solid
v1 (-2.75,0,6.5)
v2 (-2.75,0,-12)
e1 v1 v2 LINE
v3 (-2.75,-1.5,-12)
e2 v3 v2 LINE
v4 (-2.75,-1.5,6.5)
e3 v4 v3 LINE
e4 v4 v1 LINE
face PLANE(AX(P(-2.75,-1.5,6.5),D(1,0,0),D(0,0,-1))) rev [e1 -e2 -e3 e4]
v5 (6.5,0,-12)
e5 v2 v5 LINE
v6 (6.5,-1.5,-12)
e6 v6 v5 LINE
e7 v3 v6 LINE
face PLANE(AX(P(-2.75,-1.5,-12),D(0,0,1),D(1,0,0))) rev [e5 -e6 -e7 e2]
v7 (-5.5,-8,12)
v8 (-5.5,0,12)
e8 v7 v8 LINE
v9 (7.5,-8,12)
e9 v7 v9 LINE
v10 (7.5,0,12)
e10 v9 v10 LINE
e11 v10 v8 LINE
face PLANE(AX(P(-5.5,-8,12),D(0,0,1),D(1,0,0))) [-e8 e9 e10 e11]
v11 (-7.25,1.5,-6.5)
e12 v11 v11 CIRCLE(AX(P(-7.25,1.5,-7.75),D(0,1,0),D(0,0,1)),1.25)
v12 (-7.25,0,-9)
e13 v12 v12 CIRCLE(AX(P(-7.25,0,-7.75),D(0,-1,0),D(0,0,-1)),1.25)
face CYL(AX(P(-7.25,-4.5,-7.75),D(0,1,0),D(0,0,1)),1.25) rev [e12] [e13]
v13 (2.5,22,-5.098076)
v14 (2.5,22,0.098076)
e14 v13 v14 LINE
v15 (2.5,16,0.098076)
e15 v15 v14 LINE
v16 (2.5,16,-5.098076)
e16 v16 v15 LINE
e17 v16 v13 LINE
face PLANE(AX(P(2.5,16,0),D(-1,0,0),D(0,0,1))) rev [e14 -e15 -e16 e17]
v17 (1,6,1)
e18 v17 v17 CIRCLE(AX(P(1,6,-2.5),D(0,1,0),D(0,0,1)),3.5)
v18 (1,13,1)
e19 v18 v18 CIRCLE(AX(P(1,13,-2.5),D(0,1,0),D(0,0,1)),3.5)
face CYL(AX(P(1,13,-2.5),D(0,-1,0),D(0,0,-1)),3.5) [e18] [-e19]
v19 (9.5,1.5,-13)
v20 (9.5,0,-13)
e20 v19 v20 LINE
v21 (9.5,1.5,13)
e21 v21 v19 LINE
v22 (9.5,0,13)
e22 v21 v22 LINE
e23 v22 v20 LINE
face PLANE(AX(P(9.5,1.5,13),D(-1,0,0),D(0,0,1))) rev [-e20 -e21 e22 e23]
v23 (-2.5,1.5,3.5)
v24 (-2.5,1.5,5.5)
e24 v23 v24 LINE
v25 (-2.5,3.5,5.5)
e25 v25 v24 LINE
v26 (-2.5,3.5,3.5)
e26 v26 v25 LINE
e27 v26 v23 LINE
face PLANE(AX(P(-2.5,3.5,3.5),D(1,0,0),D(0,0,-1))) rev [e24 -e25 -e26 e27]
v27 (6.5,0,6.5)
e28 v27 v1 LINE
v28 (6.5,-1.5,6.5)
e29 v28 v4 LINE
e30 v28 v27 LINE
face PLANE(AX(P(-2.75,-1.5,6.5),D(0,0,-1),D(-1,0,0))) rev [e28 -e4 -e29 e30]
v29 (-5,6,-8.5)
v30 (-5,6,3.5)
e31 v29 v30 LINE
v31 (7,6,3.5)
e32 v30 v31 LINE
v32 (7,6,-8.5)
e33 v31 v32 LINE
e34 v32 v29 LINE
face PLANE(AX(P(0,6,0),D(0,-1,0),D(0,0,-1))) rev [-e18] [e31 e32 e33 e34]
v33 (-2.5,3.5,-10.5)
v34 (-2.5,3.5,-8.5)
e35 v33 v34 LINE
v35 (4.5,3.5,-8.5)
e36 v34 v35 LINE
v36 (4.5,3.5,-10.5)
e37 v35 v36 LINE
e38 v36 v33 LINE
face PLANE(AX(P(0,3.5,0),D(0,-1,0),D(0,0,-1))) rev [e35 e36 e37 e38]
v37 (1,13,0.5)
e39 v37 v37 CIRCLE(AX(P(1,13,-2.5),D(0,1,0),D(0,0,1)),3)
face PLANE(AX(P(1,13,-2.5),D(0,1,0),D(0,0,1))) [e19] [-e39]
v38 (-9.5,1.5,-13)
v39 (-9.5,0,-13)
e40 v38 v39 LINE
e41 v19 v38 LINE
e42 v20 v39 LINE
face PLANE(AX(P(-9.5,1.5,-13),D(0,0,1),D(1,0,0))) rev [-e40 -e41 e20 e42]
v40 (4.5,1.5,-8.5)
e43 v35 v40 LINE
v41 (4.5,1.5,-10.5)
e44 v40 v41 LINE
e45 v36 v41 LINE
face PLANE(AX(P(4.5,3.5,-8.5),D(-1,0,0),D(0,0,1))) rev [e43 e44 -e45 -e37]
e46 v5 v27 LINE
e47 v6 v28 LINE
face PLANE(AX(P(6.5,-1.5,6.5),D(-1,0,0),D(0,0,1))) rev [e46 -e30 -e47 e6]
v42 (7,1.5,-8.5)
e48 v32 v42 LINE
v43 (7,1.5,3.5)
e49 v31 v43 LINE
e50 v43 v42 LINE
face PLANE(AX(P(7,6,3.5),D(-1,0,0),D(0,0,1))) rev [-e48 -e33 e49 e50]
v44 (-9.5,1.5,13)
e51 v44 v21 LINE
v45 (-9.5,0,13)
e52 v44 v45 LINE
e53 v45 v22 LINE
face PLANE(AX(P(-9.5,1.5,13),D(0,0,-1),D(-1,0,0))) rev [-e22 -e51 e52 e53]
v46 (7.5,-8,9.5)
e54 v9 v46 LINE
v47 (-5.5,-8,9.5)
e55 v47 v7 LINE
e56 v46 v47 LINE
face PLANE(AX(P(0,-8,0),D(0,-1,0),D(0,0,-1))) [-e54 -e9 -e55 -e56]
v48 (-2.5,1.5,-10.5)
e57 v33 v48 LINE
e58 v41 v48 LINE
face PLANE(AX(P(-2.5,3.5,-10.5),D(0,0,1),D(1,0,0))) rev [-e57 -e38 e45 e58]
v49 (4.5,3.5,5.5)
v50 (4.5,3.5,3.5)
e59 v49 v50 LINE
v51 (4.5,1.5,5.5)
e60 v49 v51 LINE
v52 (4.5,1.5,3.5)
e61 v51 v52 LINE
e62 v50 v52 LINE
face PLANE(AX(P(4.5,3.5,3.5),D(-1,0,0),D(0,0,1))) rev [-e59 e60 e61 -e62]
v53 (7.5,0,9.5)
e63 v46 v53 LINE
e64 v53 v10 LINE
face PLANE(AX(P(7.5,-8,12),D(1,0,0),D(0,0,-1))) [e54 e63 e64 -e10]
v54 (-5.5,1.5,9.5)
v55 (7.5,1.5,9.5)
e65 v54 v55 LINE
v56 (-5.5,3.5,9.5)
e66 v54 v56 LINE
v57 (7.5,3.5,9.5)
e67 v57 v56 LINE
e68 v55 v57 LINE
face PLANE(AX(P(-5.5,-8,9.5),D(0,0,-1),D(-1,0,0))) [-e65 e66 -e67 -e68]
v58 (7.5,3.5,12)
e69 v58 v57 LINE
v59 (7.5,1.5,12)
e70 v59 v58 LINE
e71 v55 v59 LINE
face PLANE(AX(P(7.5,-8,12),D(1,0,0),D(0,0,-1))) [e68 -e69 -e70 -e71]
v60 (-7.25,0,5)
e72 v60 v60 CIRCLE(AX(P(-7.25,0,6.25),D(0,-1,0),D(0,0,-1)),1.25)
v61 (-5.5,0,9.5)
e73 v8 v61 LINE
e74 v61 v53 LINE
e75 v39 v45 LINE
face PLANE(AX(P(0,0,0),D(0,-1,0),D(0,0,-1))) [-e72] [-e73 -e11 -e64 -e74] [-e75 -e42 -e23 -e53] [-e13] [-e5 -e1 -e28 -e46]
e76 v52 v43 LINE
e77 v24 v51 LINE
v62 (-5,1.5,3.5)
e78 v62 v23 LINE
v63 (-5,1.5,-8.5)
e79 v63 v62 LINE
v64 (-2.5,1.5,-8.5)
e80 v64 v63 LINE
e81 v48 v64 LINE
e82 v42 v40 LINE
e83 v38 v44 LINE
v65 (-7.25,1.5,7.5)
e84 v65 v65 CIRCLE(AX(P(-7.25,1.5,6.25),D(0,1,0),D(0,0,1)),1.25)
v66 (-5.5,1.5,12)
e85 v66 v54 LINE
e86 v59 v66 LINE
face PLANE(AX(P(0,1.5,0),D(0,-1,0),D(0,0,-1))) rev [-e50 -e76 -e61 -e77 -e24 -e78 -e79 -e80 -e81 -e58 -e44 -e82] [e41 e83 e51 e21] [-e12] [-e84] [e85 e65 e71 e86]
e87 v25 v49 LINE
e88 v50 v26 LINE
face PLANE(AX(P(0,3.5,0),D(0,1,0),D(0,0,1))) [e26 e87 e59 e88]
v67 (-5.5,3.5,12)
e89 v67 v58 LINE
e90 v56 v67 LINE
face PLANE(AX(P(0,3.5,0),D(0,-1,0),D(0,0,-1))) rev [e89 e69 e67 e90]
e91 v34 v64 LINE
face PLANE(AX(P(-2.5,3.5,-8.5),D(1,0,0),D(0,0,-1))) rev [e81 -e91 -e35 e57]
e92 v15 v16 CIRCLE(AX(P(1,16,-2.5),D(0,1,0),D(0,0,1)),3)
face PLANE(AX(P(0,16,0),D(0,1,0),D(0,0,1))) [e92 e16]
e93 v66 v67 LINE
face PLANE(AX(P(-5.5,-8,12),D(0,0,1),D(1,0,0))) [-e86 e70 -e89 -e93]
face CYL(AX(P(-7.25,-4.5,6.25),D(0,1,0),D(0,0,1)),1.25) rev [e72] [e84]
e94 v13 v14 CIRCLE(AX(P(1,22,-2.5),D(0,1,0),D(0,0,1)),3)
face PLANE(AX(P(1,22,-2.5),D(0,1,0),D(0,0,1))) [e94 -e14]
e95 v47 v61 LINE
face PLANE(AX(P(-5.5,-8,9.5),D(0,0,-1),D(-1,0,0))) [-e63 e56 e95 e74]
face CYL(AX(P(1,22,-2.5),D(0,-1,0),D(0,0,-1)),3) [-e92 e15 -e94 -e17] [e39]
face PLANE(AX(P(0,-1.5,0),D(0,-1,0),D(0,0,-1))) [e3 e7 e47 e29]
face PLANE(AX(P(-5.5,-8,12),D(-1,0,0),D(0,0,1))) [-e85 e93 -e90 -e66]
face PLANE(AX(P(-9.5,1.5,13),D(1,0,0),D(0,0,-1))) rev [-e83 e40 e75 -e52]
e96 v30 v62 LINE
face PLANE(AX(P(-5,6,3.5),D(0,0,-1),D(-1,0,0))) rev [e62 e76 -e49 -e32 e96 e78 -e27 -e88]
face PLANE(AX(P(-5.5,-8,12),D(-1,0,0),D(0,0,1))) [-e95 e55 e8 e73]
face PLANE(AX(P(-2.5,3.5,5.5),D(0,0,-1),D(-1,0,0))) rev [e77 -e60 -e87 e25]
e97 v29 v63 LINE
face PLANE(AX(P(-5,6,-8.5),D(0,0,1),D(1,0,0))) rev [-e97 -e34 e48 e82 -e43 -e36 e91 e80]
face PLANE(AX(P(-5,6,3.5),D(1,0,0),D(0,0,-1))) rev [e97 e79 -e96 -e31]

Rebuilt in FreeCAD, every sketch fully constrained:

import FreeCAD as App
import Part
import Sketcher

V = App.Vector


def add_polygon(sketch, points):
    """Adds a closed chain of lines whose ends are joined by coincident constraints."""
    first, n = sketch.GeometryCount, len(points)
    for a, b in zip(points, points[1:] + points[:1]):
        sketch.addGeometry(Part.LineSegment(App.Vector(*a, 0), App.Vector(*b, 0)), False)
    for i in range(n):
        sketch.addConstraint(Sketcher.Constraint("Coincident", first + i, 2, first + (i + 1) % n, 1))

doc = App.newDocument("Part")
body = doc.addObject("PartDesign::Body", "Body")

sketch1 = doc.addObject("Sketcher::SketchObject", "Sketch")
body.addObject(sketch1)
sketch1.AttachmentSupport = (doc.XZ_Plane, [""])
sketch1.MapMode = "FlatFace"
add_polygon(sketch1, [(-10, -13), (-10, 13), (10, 13), (10, -13)])
sketch1.addConstraint([
    Sketcher.Constraint("Vertical", 0),
    Sketcher.Constraint("Horizontal", 1),
    Sketcher.Constraint("Vertical", 2),
    Sketcher.Constraint("Horizontal", 3),
    Sketcher.Constraint("Symmetric", 0, 2, 2, 2, -1, 1),
    Sketcher.Constraint("DistanceX", 1, 1, 1, 2, 19.0),
    Sketcher.Constraint("DistanceY", 0, 1, 0, 2, 26.0),
])
pad1 = doc.addObject("PartDesign::Pad", "Pad")
body.addObject(pad1)
pad1.Profile = sketch1
pad1.Length = 1.5
pad1.Reversed = True

sketch2 = doc.addObject("Sketcher::SketchObject", "Sketch001")
body.addObject(sketch2)
sketch2.AttachmentSupport = (doc.XZ_Plane, [""])
sketch2.MapMode = "FlatFace"
sketch2.AttachmentOffset = App.Placement(V(0, 0, -1.5), App.Rotation())
add_polygon(sketch2, [(-5, -8), (-5, 4), (7, 4), (7, -8)])
sketch2.addConstraint([
    Sketcher.Constraint("Vertical", 0),
    Sketcher.Constraint("Horizontal", 1),
    Sketcher.Constraint("Vertical", 2),
    Sketcher.Constraint("Horizontal", 3),
    Sketcher.Constraint("Equal", 3, 0),
    Sketcher.Constraint("DistanceX", 1, 1, 1, 2, 12.0),
    Sketcher.Constraint("DistanceX", 0, 2, -1, 1, 5.0),
    Sketcher.Constraint("DistanceY", -1, 1, 0, 2, 3.5),
])
pad2 = doc.addObject("PartDesign::Pad", "Pad001")
body.addObject(pad2)
pad2.Profile = sketch2
pad2.Length = 4.5
pad2.Reversed = True

sketch3 = doc.addObject("Sketcher::SketchObject", "Sketch002")
body.addObject(sketch3)
sketch3.AttachmentSupport = (doc.XZ_Plane, [""])
sketch3.MapMode = "FlatFace"
sketch3.AttachmentOffset = App.Placement(V(0, 0, -6), App.Rotation())
sketch3.addGeometry(Part.Circle(V(1, -2.5, 0), V(0, 0, 1), 3.5), False)
sketch3.addConstraint([
    Sketcher.Constraint("Diameter", 0, 7.0),
    Sketcher.Constraint("DistanceX", -1, 1, 0, 3, 1.0),
    Sketcher.Constraint("DistanceY", 0, 3, -1, 1, 2.5),
])
pad3 = doc.addObject("PartDesign::Pad", "Pad002")
body.addObject(pad3)
pad3.Profile = sketch3
pad3.Length = 7
pad3.Reversed = True

sketch4 = doc.addObject("Sketcher::SketchObject", "Sketch003")
body.addObject(sketch4)
sketch4.AttachmentSupport = (doc.XZ_Plane, [""])
sketch4.MapMode = "FlatFace"
sketch4.AttachmentOffset = App.Placement(V(0, 0, -13), App.Rotation())
sketch4.addGeometry(Part.Circle(V(1, -2.5, 0), V(0, 0, 1), 3), False)
sketch4.addConstraint([
    Sketcher.Constraint("Diameter", 0, 6.0),
    Sketcher.Constraint("DistanceX", -1, 1, 0, 3, 1.0),
    Sketcher.Constraint("DistanceY", 0, 3, -1, 1, 2.5),
])
pad4 = doc.addObject("PartDesign::Pad", "Pad003")
body.addObject(pad4)
pad4.Profile = sketch4
pad4.Length = 9
pad4.Reversed = True

sketch5 = doc.addObject("Sketcher::SketchObject", "Sketch004")
body.addObject(sketch5)
sketch5.AttachmentSupport = (doc.XZ_Plane, [""])
sketch5.MapMode = "FlatFace"
sketch5.AttachmentOffset = App.Placement(V(0, 0, -22), App.Rotation())
add_polygon(sketch5, [(2, -59), (2, 54), (109, 54), (109, -59)])
sketch5.addConstraint([
    Sketcher.Constraint("Vertical", 0),
    Sketcher.Constraint("Horizontal", 1),
    Sketcher.Constraint("Vertical", 2),
    Sketcher.Constraint("Horizontal", 3),
    Sketcher.Constraint("DistanceX", -1, 1, 0, 2, 2.5),
    Sketcher.Constraint("DistanceX", 1, 1, 1, 2, 106.859921),
    Sketcher.Constraint("DistanceY", 0, 1, 0, 2, 112.056073),
    Sketcher.Constraint("DistanceY", -1, 1, 0, 2, 53.528036),
])
pocket1 = doc.addObject("PartDesign::Pocket", "Pocket")
body.addObject(pocket1)
pocket1.Profile = sketch5
pocket1.Length = 6
pocket1.Reversed = True

sketch6 = doc.addObject("Sketcher::SketchObject", "Sketch005")
body.addObject(sketch6)
sketch6.AttachmentSupport = (doc.XZ_Plane, [""])
sketch6.MapMode = "FlatFace"
sketch6.AttachmentOffset = App.Placement(V(0, 0, -1.5), App.Rotation())
sketch6.addGeometry([
    Part.Circle(V(-7.2, -7.8, 0), V(0, 0, 1), 1.2),
    Part.Circle(V(-7.2, 6.2, 0), V(0, 0, 1), 1.2),
], False)
sketch6.addConstraint([
    Sketcher.Constraint("Equal", 0, 1),
    Sketcher.Constraint("Vertical", 0, 3, 1, 3),
    Sketcher.Constraint("Diameter", 0, 2.5),
    Sketcher.Constraint("DistanceY", 0, 3, 1, 3, 14.0),
    Sketcher.Constraint("DistanceX", 0, 3, -1, 1, 7.25),
    Sketcher.Constraint("DistanceY", 0, 3, -1, 1, 7.75),
])
pocket2 = doc.addObject("PartDesign::Pocket", "Pocket001")
body.addObject(pocket2)
pocket2.Profile = sketch6
pocket2.Length = 6
pocket2.Reversed = True

sketch7 = doc.addObject("Sketcher::SketchObject", "Sketch006")
body.addObject(sketch7)
sketch7.AttachmentSupport = (doc.XZ_Plane, [""])
sketch7.MapMode = "FlatFace"
sketch7.AttachmentOffset = App.Placement(V(0, 0, -1.5), App.Rotation())
add_polygon(sketch7, [(-5.5, 9.5), (-5.5, 12), (7.5, 12), (7.5, 9.5)])
sketch7.addConstraint([
    Sketcher.Constraint("Vertical", 0),
    Sketcher.Constraint("Horizontal", 1),
    Sketcher.Constraint("Vertical", 2),
    Sketcher.Constraint("Horizontal", 3),
    Sketcher.Constraint("DistanceX", 1, 1, 1, 2, 13.0),
    Sketcher.Constraint("DistanceY", 0, 1, 0, 2, 2.5),
    Sketcher.Constraint("DistanceY", -1, 1, 0, 2, 12.0),
    Sketcher.Constraint("DistanceX", 0, 2, -1, 1, 5.5),
])
pad5 = doc.addObject("PartDesign::Pad", "Pad004")
body.addObject(pad5)
pad5.Profile = sketch7
pad5.Type = "TwoLengths"
pad5.Length = 2
pad5.Length2 = 9.5
pad5.Reversed = True

sketch8 = doc.addObject("Sketcher::SketchObject", "Sketch007")
body.addObject(sketch8)
sketch8.AttachmentSupport = (doc.XZ_Plane, [""])
sketch8.MapMode = "FlatFace"
add_polygon(sketch8, [(-3, 6), (-3, -12), (6, -12), (6, 6)])
sketch8.addConstraint([
    Sketcher.Constraint("Vertical", 0),
    Sketcher.Constraint("Horizontal", 1),
    Sketcher.Constraint("Vertical", 2),
    Sketcher.Constraint("Horizontal", 3),
    Sketcher.Constraint("DistanceY", 0, 2, 0, 1, 18.5),
    Sketcher.Constraint("DistanceY", 0, 2, -1, 1, 12.0),
    Sketcher.Constraint("DistanceX", 1, 1, 1, 2, 9.25),
    Sketcher.Constraint("DistanceX", -1, 1, 1, 2, 6.5),
])
pad6 = doc.addObject("PartDesign::Pad", "Pad005")
body.addObject(pad6)
pad6.Profile = sketch8
pad6.Length = 1.5

sketch9 = doc.addObject("Sketcher::SketchObject", "Sketch008")
body.addObject(sketch9)
sketch9.AttachmentSupport = (doc.XZ_Plane, [""])
sketch9.MapMode = "FlatFace"
sketch9.AttachmentOffset = App.Placement(V(0, 0, -1.5), App.Rotation())
add_polygon(sketch9, [(-2.5, -10.5), (-2.5, -8.5), (4.5, -8.5), (4.5, -10.5)])
add_polygon(sketch9, [(-2.5, 3.5), (-2.5, 5.5), (4.5, 5.5), (4.5, 3.5)])
sketch9.addConstraint([
    Sketcher.Constraint("Vertical", 0),
    Sketcher.Constraint("Horizontal", 1),
    Sketcher.Constraint("Vertical", 2),
    Sketcher.Constraint("Horizontal", 3),
    Sketcher.Constraint("Vertical", 4),
    Sketcher.Constraint("Horizontal", 5),
    Sketcher.Constraint("Vertical", 6),
    Sketcher.Constraint("Horizontal", 7),
    Sketcher.Constraint("Vertical", 3, 2, 4, 2),
    Sketcher.Constraint("Vertical", 2, 2, 5, 2),
    Sketcher.Constraint("Equal", 2, 4),
    Sketcher.Constraint("DistanceX", 1, 1, 1, 2, 7.0),
    Sketcher.Constraint("DistanceY", 0, 1, 0, 2, 2.0),
    Sketcher.Constraint("DistanceY", 0, 2, 4, 2, 14.0),
    Sketcher.Constraint("DistanceX", 0, 2, -1, 1, 2.5),
    Sketcher.Constraint("DistanceY", 0, 2, -1, 1, 8.5),
])
pad7 = doc.addObject("PartDesign::Pad", "Pad006")
body.addObject(pad7)
pad7.Profile = sketch9
pad7.Length = 2
pad7.Reversed = True

doc.recompute()
